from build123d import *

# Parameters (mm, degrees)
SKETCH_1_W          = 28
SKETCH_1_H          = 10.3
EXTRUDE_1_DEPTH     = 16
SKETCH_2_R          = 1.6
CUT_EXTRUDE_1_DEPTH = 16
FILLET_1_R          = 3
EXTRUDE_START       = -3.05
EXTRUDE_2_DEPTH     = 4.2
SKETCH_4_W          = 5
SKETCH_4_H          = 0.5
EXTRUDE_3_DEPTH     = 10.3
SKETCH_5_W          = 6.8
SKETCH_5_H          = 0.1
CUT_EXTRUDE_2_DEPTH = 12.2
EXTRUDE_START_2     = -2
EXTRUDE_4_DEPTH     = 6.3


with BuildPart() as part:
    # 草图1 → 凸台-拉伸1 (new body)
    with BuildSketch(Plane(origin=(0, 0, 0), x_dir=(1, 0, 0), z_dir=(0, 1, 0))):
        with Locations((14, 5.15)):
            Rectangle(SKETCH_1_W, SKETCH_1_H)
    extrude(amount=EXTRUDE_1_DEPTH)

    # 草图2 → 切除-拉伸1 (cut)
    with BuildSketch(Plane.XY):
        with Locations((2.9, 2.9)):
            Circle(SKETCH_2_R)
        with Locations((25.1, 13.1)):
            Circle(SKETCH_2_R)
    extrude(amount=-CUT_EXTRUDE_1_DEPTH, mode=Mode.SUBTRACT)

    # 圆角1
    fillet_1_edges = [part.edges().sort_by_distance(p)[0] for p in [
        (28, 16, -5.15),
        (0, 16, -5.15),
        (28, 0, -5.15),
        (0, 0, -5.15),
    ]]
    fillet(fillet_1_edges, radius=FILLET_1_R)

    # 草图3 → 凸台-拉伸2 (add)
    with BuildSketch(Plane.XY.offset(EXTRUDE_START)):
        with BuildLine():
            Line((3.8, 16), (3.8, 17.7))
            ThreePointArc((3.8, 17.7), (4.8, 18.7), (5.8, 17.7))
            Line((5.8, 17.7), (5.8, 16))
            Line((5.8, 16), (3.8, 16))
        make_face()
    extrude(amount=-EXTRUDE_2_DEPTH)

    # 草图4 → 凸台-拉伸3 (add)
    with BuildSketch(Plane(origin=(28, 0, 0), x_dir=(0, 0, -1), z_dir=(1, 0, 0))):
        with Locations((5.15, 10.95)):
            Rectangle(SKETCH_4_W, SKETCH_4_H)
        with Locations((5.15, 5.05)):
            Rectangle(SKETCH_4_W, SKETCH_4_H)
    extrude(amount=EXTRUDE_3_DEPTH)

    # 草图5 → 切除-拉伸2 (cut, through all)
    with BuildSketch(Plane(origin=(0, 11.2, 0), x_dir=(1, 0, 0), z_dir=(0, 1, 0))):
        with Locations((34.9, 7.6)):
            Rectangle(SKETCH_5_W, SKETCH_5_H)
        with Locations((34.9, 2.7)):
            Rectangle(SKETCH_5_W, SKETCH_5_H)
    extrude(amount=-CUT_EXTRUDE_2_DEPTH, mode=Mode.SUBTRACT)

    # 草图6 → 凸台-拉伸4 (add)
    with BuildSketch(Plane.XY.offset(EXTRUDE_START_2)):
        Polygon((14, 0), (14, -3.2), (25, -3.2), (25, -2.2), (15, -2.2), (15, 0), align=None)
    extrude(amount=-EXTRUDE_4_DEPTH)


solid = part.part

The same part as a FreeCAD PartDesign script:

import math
import FreeCAD as App
import Part
import Sketcher
from FreeCAD import Vector


def edges_at(feature, points):
    """Names of the edges that pass closest to the given points."""
    edges = feature.Shape.Edges
    near = lambda p: min(range(len(edges)), key=lambda i: edges[i].distToShape(Part.Vertex(*p))[0])
    return sorted({f"Edge{near(p) + 1}" for p in points})

doc = App.newDocument("Part")
body = doc.addObject("PartDesign::Body", "Body")

# Sketch on XZ plane
sketch1 = body.newObject("Sketcher::SketchObject", "Sketch")
sketch1.AttachmentSupport = (doc.getObject("XZ_Plane"), [""])
sketch1.MapMode = "FlatFace"
sketch1.addGeometry(Part.LineSegment(Vector(0, -10, 0), Vector(0, 0, 0)), False)
sketch1.addGeometry(Part.LineSegment(Vector(0, 0, 0), Vector(28, 0, 0)), False)
sketch1.addGeometry(Part.LineSegment(Vector(28, 0, 0), Vector(28, -10, 0)), False)
sketch1.addGeometry(Part.LineSegment(Vector(28, -10, 0), Vector(0, -10, 0)), False)
sketch1.addConstraint(Sketcher.Constraint("Coincident", 0, 2, 1, 1))
sketch1.addConstraint(Sketcher.Constraint("Coincident", 1, 2, 2, 1))
sketch1.addConstraint(Sketcher.Constraint("Coincident", 2, 2, 3, 1))
sketch1.addConstraint(Sketcher.Constraint("Coincident", 3, 2, 0, 1))
sketch1.addConstraint(Sketcher.Constraint("Vertical", 0))
sketch1.addConstraint(Sketcher.Constraint("Horizontal", 1))
sketch1.addConstraint(Sketcher.Constraint("Vertical", 2))
sketch1.addConstraint(Sketcher.Constraint("Horizontal", 3))
sketch1.addConstraint(Sketcher.Constraint("Coincident", 0, 2, -1, 1))
sketch1.addConstraint(Sketcher.Constraint("DistanceX", 1, 1, 1, 2, 28.0))
sketch1.addConstraint(Sketcher.Constraint("DistanceY", 0, 1, 0, 2, 10.3))
pad1 = body.newObject("PartDesign::Pad", "Pad")
pad1.Profile = sketch1
pad1.Length = 16
pad1.Reversed = True

# Sketch on XY plane
sketch2 = body.newObject("Sketcher::SketchObject", "Sketch001")
sketch2.AttachmentSupport = (doc.getObject("XY_Plane"), [""])
sketch2.MapMode = "FlatFace"
sketch2.addGeometry(Part.Circle(Vector(2.9, 2.9, 0), Vector(0, 0, 1), 1.6), False)
sketch2.addGeometry(Part.Circle(Vector(25.1, 13.1, 0), Vector(0, 0, 1), 1.6), False)
sketch2.addConstraint(Sketcher.Constraint("Equal", 0, 1))
sketch2.addConstraint(Sketcher.Constraint("Diameter", 0, 3.2))
sketch2.addConstraint(Sketcher.Constraint("DistanceX", -1, 1, 0, 3, 2.9))
sketch2.addConstraint(Sketcher.Constraint("DistanceY", -1, 1, 0, 3, 2.9))
sketch2.addConstraint(Sketcher.Constraint("DistanceX", -1, 1, 1, 3, 25.1))
sketch2.addConstraint(Sketcher.Constraint("DistanceY", -1, 1, 1, 3, 13.1))
pocket1 = body.newObject("PartDesign::Pocket", "Pocket")
pocket1.Profile = sketch2
pocket1.Length = 16
doc.recompute()

fillet = body.newObject("PartDesign::Fillet", "Fillet")
fillet.Base = (pocket1, edges_at(pocket1, [
    (28, 16, -5.15),
    (0, 16, -5.15),
    (28, 0, -5.15),
    (0, 0, -5.15),
]))
fillet.Radius = 3

# Sketch on XY plane
sketch3 = body.newObject("Sketcher::SketchObject", "Sketch002")
sketch3.AttachmentSupport = (doc.getObject("XY_Plane"), [""])
sketch3.MapMode = "FlatFace"
sketch3.AttachmentOffset = App.Placement(Vector(0, 0, -3.05), App.Rotation())
sketch3.addGeometry(Part.LineSegment(Vector(3.8, 17.7, 0), Vector(3.8, 16, 0)), False)
sketch3.addGeometry(Part.LineSegment(Vector(3.8, 16, 0), Vector(5.8, 16, 0)), False)
sketch3.addGeometry(Part.LineSegment(Vector(5.8, 16, 0), Vector(5.8, 17.7, 0)), False)
sketch3.addGeometry(Part.ArcOfCircle(Part.Circle(Vector(4.8, 17.7, 0), Vector(0, 0, 1), 1), math.radians(0), math.radians(180)), False)
sketch3.addConstraint(Sketcher.Constraint("Coincident", 0, 2, 1, 1))
sketch3.addConstraint(Sketcher.Constraint("Coincident", 1, 2, 2, 1))
sketch3.addConstraint(Sketcher.Constraint("Tangent", 2, 2, 3, 1))
sketch3.addConstraint(Sketcher.Constraint("Tangent", 3, 2, 0, 1))
sketch3.addConstraint(Sketcher.Constraint("Vertical", 0))
sketch3.addConstraint(Sketcher.Constraint("Horizontal", 1))
sketch3.addConstraint(Sketcher.Constraint("Vertical", 2))
sketch3.addConstraint(Sketcher.Constraint("Radius", 3, 1.0))
sketch3.addConstraint(Sketcher.Constraint("DistanceY", 0, 2, 0, 1, 1.7))
sketch3.addConstraint(Sketcher.Constraint("DistanceY", -1, 1, 0, 2, 16.0))
sketch3.addConstraint(Sketcher.Constraint("DistanceX", -1, 1, 3, 3, 4.8))
pad2 = body.newObject("PartDesign::Pad", "Pad001")
pad2.Profile = sketch3
pad2.Length = 4.2
pad2.Reversed = True

# Sketch on YZ plane
sketch4 = body.newObject("Sketcher::SketchObject", "Sketch003")
sketch4.AttachmentSupport = (doc.getObject("YZ_Plane"), [""])
sketch4.MapMode = "FlatFace"
sketch4.AttachmentOffset = App.Placement(Vector(0, 0, 28), App.Rotation())
sketch4.addGeometry(Part.LineSegment(Vector(11.2, -2.6, 0), Vector(10.7, -2.6, 0)), False)
sketch4.addGeometry(Part.LineSegment(Vector(10.7, -2.6, 0), Vector(10.7, -7.7, 0)), False)
sketch4.addGeometry(Part.LineSegment(Vector(10.7, -7.7, 0), Vector(11.2, -7.7, 0)), False)
sketch4.addGeometry(Part.LineSegment(Vector(11.2, -7.7, 0), Vector(11.2, -2.6, 0)), False)
sketch4.addGeometry(Part.LineSegment(Vector(5.3, -2.6, 0), Vector(4.8, -2.6, 0)), False)
sketch4.addGeometry(Part.LineSegment(Vector(4.8, -2.6, 0), Vector(4.8, -7.7, 0)), False)
sketch4.addGeometry(Part.LineSegment(Vector(4.8, -7.7, 0), Vector(5.3, -7.7, 0)), False)
sketch4.addGeometry(Part.LineSegment(Vector(5.3, -7.7, 0), Vector(5.3, -2.6, 0)), False)
sketch4.addConstraint(Sketcher.Constraint("Coincident", 0, 2, 1, 1))
sketch4.addConstraint(Sketcher.Constraint("Coincident", 1, 2, 2, 1))
sketch4.addConstraint(Sketcher.Constraint("Coincident", 2, 2, 3, 1))
sketch4.addConstraint(Sketcher.Constraint("Coincident", 3, 2, 0, 1))
sketch4.addConstraint(Sketcher.Constraint("Coincident", 4, 2, 5, 1))
sketch4.addConstraint(Sketcher.Constraint("Coincident", 5, 2, 6, 1))
sketch4.addConstraint(Sketcher.Constraint("Coincident", 6, 2, 7, 1))
sketch4.addConstraint(Sketcher.Constraint("Coincident", 7, 2, 4, 1))
sketch4.addConstraint(Sketcher.Constraint("Horizontal", 0))
sketch4.addConstraint(Sketcher.Constraint("Vertical", 1))
sketch4.addConstraint(Sketcher.Constraint("Horizontal", 2))
sketch4.addConstraint(Sketcher.Constraint("Vertical", 3))
sketch4.addConstraint(Sketcher.Constraint("Horizontal", 4))
sketch4.addConstraint(Sketcher.Constraint("Vertical", 5))
sketch4.addConstraint(Sketcher.Constraint("Horizontal", 6))
sketch4.addConstraint(Sketcher.Constraint("Vertical", 7))
sketch4.addConstraint(Sketcher.Constraint("Horizontal", 3, 2, 4, 2))
sketch4.addConstraint(Sketcher.Constraint("Horizontal", 2, 2, 5, 2))
sketch4.addConstraint(Sketcher.Constraint("Equal", 2, 4))
sketch4.addConstraint(Sketcher.Constraint("DistanceY", 1, 2, 1, 1, 5.0))
sketch4.addConstraint(Sketcher.Constraint("DistanceX", 0, 2, 0, 1, 0.5))
sketch4.addConstraint(Sketcher.Constraint("DistanceX", -1, 1, 0, 2, 10.7))
sketch4.addConstraint(Sketcher.Constraint("DistanceX", -1, 1, 4, 2, 4.8))
sketch4.addConstraint(Sketcher.Constraint("DistanceY", 0, 2, -1, 1, 2.65))
pad3 = body.newObject("PartDesign::Pad", "Pad002")
pad3.Profile = sketch4
pad3.Length = 10.3

# Sketch on XZ plane
sketch5 = body.newObject("Sketcher::SketchObject", "Sketch004")
sketch5.AttachmentSupport = (doc.getObject("XZ_Plane"), [""])
sketch5.MapMode = "FlatFace"
sketch5.AttachmentOffset = App.Placement(Vector(0, 0, -11.2), App.Rotation())
sketch5.addGeometry(Part.LineSegment(Vector(31.5, -7.65, 0), Vector(31.5, -7.55, 0)), False)
sketch5.addGeometry(Part.LineSegment(Vector(31.5, -7.55, 0), Vector(38.3, -7.55, 0)), False)
sketch5.addGeometry(Part.LineSegment(Vector(38.3, -7.55, 0), Vector(38.3, -7.65, 0)), False)
sketch5.addGeometry(Part.LineSegment(Vector(38.3, -7.65, 0), Vector(31.5, -7.65, 0)), False)
sketch5.addGeometry(Part.LineSegment(Vector(31.5, -2.75, 0), Vector(31.5, -2.65, 0)), False)
sketch5.addGeometry(Part.LineSegment(Vector(31.5, -2.65, 0), Vector(38.3, -2.65, 0)), False)
sketch5.addGeometry(Part.LineSegment(Vector(38.3, -2.65, 0), Vector(38.3, -2.75, 0)), False)
sketch5.addGeometry(Part.LineSegment(Vector(38.3, -2.75, 0), Vector(31.5, -2.75, 0)), False)
sketch5.addConstraint(Sketcher.Constraint("Coincident", 0, 2, 1, 1))
sketch5.addConstraint(Sketcher.Constraint("Coincident", 1, 2, 2, 1))
sketch5.addConstraint(Sketcher.Constraint("Coincident", 2, 2, 3, 1))
sketch5.addConstraint(Sketcher.Constraint("Coincident", 3, 2, 0, 1))
sketch5.addConstraint(Sketcher.Constraint("Coincident", 4, 2, 5, 1))
sketch5.addConstraint(Sketcher.Constraint("Coincident", 5, 2, 6, 1))
sketch5.addConstraint(Sketcher.Constraint("Coincident", 6, 2, 7, 1))
sketch5.addConstraint(Sketcher.Constraint("Coincident", 7, 2, 4, 1))
sketch5.addConstraint(Sketcher.Constraint("Vertical", 0))
sketch5.addConstraint(Sketcher.Constraint("Horizontal", 1))
sketch5.addConstraint(Sketcher.Constraint("Vertical", 2))
sketch5.addConstraint(Sketcher.Constraint("Horizontal", 3))
sketch5.addConstraint(Sketcher.Constraint("Vertical", 4))
sketch5.addConstraint(Sketcher.Constraint("Horizontal", 5))
sketch5.addConstraint(Sketcher.Constraint("Vertical", 6))
sketch5.addConstraint(Sketcher.Constraint("Horizontal", 7))
sketch5.addConstraint(Sketcher.Constraint("Vertical", 3, 2, 4, 2))
sketch5.addConstraint(Sketcher.Constraint("Vertical", 2, 2, 5, 2))
sketch5.addConstraint(Sketcher.Constraint("Equal", 2, 4))
sketch5.addConstraint(Sketcher.Constraint("DistanceX", 1, 1, 1, 2, 6.8))
sketch5.addConstraint(Sketcher.Constraint("DistanceY", 0, 1, 0, 2, 0.1))
sketch5.addConstraint(Sketcher.Constraint("DistanceY", 3, 2, 4, 2, 5.0))
sketch5.addConstraint(Sketcher.Constraint("DistanceX", -1, 1, 0, 2, 31.5))
sketch5.addConstraint(Sketcher.Constraint("DistanceY", 0, 2, -1, 1, 7.55))
pocket2 = body.newObject("PartDesign::Pocket", "Pocket001")
pocket2.Profile = sketch5
pocket2.Type = "ThroughAll"
pocket2.Reversed = True

# Sketch on XY plane
sketch6 = body.newObject("Sketcher::SketchObject", "Sketch005")
sketch6.AttachmentSupport = (doc.getObject("XY_Plane"), [""])
sketch6.MapMode = "FlatFace"
sketch6.AttachmentOffset = App.Placement(Vector(0, 0, -2), App.Rotation())
sketch6.addGeometry(Part.LineSegment(Vector(14, 0, 0), Vector(14, -3.2, 0)), False)
sketch6.addGeometry(Part.LineSegment(Vector(14, -3.2, 0), Vector(25, -3.2, 0)), False)
sketch6.addGeometry(Part.LineSegment(Vector(25, -3.2, 0), Vector(25, -2.2, 0)), False)
sketch6.addGeometry(Part.LineSegment(Vector(25, -2.2, 0), Vector(15, -2.2, 0)), False)
sketch6.addGeometry(Part.LineSegment(Vector(15, -2.2, 0), Vector(15, 0, 0)), False)
sketch6.addGeometry(Part.LineSegment(Vector(15, 0, 0), Vector(14, 0, 0)), False)
sketch6.addConstraint(Sketcher.Constraint("Coincident", 0, 2, 1, 1))
sketch6.addConstraint(Sketcher.Constraint("Coincident", 1, 2, 2, 1))
sketch6.addConstraint(Sketcher.Constraint("Coincident", 2, 2, 3, 1))
sketch6.addConstraint(Sketcher.Constraint("Coincident", 3, 2, 4, 1))
sketch6.addConstraint(Sketcher.Constraint("Coincident", 4, 2, 5, 1))
sketch6.addConstraint(Sketcher.Constraint("Coincident", 5, 2, 0, 1))
sketch6.addConstraint(Sketcher.Constraint("Vertical", 0))
sketch6.addConstraint(Sketcher.Constraint("Horizontal", 1))
sketch6.addConstraint(Sketcher.Constraint("Vertical", 2))
sketch6.addConstraint(Sketcher.Constraint("Horizontal", 3))
sketch6.addConstraint(Sketcher.Constraint("Vertical", 4))
sketch6.addConstraint(Sketcher.Constraint("Horizontal", 5))
sketch6.addConstraint(Sketcher.Constraint("PointOnObject", 4, 2, -1))
sketch6.addConstraint(Sketcher.Constraint("Equal", 5, 2))
sketch6.addConstraint(Sketcher.Constraint("DistanceX", 1, 1, 1, 2, 11.0))
sketch6.addConstraint(Sketcher.Constraint("DistanceX", 3, 2, 3, 1, 10.0))
sketch6.addConstraint(Sketcher.Constraint("DistanceY", 0, 2, 0, 1, 3.2))
sketch6.addConstraint(Sketcher.Constraint("DistanceX", -1, 1, 0, 2, 14.0))
pad4 = body.newObject("PartDesign::Pad", "Pad003")
pad4.Profile = sketch6
pad4.Length = 6.3
pad4.Reversed = True

doc.recompute()
